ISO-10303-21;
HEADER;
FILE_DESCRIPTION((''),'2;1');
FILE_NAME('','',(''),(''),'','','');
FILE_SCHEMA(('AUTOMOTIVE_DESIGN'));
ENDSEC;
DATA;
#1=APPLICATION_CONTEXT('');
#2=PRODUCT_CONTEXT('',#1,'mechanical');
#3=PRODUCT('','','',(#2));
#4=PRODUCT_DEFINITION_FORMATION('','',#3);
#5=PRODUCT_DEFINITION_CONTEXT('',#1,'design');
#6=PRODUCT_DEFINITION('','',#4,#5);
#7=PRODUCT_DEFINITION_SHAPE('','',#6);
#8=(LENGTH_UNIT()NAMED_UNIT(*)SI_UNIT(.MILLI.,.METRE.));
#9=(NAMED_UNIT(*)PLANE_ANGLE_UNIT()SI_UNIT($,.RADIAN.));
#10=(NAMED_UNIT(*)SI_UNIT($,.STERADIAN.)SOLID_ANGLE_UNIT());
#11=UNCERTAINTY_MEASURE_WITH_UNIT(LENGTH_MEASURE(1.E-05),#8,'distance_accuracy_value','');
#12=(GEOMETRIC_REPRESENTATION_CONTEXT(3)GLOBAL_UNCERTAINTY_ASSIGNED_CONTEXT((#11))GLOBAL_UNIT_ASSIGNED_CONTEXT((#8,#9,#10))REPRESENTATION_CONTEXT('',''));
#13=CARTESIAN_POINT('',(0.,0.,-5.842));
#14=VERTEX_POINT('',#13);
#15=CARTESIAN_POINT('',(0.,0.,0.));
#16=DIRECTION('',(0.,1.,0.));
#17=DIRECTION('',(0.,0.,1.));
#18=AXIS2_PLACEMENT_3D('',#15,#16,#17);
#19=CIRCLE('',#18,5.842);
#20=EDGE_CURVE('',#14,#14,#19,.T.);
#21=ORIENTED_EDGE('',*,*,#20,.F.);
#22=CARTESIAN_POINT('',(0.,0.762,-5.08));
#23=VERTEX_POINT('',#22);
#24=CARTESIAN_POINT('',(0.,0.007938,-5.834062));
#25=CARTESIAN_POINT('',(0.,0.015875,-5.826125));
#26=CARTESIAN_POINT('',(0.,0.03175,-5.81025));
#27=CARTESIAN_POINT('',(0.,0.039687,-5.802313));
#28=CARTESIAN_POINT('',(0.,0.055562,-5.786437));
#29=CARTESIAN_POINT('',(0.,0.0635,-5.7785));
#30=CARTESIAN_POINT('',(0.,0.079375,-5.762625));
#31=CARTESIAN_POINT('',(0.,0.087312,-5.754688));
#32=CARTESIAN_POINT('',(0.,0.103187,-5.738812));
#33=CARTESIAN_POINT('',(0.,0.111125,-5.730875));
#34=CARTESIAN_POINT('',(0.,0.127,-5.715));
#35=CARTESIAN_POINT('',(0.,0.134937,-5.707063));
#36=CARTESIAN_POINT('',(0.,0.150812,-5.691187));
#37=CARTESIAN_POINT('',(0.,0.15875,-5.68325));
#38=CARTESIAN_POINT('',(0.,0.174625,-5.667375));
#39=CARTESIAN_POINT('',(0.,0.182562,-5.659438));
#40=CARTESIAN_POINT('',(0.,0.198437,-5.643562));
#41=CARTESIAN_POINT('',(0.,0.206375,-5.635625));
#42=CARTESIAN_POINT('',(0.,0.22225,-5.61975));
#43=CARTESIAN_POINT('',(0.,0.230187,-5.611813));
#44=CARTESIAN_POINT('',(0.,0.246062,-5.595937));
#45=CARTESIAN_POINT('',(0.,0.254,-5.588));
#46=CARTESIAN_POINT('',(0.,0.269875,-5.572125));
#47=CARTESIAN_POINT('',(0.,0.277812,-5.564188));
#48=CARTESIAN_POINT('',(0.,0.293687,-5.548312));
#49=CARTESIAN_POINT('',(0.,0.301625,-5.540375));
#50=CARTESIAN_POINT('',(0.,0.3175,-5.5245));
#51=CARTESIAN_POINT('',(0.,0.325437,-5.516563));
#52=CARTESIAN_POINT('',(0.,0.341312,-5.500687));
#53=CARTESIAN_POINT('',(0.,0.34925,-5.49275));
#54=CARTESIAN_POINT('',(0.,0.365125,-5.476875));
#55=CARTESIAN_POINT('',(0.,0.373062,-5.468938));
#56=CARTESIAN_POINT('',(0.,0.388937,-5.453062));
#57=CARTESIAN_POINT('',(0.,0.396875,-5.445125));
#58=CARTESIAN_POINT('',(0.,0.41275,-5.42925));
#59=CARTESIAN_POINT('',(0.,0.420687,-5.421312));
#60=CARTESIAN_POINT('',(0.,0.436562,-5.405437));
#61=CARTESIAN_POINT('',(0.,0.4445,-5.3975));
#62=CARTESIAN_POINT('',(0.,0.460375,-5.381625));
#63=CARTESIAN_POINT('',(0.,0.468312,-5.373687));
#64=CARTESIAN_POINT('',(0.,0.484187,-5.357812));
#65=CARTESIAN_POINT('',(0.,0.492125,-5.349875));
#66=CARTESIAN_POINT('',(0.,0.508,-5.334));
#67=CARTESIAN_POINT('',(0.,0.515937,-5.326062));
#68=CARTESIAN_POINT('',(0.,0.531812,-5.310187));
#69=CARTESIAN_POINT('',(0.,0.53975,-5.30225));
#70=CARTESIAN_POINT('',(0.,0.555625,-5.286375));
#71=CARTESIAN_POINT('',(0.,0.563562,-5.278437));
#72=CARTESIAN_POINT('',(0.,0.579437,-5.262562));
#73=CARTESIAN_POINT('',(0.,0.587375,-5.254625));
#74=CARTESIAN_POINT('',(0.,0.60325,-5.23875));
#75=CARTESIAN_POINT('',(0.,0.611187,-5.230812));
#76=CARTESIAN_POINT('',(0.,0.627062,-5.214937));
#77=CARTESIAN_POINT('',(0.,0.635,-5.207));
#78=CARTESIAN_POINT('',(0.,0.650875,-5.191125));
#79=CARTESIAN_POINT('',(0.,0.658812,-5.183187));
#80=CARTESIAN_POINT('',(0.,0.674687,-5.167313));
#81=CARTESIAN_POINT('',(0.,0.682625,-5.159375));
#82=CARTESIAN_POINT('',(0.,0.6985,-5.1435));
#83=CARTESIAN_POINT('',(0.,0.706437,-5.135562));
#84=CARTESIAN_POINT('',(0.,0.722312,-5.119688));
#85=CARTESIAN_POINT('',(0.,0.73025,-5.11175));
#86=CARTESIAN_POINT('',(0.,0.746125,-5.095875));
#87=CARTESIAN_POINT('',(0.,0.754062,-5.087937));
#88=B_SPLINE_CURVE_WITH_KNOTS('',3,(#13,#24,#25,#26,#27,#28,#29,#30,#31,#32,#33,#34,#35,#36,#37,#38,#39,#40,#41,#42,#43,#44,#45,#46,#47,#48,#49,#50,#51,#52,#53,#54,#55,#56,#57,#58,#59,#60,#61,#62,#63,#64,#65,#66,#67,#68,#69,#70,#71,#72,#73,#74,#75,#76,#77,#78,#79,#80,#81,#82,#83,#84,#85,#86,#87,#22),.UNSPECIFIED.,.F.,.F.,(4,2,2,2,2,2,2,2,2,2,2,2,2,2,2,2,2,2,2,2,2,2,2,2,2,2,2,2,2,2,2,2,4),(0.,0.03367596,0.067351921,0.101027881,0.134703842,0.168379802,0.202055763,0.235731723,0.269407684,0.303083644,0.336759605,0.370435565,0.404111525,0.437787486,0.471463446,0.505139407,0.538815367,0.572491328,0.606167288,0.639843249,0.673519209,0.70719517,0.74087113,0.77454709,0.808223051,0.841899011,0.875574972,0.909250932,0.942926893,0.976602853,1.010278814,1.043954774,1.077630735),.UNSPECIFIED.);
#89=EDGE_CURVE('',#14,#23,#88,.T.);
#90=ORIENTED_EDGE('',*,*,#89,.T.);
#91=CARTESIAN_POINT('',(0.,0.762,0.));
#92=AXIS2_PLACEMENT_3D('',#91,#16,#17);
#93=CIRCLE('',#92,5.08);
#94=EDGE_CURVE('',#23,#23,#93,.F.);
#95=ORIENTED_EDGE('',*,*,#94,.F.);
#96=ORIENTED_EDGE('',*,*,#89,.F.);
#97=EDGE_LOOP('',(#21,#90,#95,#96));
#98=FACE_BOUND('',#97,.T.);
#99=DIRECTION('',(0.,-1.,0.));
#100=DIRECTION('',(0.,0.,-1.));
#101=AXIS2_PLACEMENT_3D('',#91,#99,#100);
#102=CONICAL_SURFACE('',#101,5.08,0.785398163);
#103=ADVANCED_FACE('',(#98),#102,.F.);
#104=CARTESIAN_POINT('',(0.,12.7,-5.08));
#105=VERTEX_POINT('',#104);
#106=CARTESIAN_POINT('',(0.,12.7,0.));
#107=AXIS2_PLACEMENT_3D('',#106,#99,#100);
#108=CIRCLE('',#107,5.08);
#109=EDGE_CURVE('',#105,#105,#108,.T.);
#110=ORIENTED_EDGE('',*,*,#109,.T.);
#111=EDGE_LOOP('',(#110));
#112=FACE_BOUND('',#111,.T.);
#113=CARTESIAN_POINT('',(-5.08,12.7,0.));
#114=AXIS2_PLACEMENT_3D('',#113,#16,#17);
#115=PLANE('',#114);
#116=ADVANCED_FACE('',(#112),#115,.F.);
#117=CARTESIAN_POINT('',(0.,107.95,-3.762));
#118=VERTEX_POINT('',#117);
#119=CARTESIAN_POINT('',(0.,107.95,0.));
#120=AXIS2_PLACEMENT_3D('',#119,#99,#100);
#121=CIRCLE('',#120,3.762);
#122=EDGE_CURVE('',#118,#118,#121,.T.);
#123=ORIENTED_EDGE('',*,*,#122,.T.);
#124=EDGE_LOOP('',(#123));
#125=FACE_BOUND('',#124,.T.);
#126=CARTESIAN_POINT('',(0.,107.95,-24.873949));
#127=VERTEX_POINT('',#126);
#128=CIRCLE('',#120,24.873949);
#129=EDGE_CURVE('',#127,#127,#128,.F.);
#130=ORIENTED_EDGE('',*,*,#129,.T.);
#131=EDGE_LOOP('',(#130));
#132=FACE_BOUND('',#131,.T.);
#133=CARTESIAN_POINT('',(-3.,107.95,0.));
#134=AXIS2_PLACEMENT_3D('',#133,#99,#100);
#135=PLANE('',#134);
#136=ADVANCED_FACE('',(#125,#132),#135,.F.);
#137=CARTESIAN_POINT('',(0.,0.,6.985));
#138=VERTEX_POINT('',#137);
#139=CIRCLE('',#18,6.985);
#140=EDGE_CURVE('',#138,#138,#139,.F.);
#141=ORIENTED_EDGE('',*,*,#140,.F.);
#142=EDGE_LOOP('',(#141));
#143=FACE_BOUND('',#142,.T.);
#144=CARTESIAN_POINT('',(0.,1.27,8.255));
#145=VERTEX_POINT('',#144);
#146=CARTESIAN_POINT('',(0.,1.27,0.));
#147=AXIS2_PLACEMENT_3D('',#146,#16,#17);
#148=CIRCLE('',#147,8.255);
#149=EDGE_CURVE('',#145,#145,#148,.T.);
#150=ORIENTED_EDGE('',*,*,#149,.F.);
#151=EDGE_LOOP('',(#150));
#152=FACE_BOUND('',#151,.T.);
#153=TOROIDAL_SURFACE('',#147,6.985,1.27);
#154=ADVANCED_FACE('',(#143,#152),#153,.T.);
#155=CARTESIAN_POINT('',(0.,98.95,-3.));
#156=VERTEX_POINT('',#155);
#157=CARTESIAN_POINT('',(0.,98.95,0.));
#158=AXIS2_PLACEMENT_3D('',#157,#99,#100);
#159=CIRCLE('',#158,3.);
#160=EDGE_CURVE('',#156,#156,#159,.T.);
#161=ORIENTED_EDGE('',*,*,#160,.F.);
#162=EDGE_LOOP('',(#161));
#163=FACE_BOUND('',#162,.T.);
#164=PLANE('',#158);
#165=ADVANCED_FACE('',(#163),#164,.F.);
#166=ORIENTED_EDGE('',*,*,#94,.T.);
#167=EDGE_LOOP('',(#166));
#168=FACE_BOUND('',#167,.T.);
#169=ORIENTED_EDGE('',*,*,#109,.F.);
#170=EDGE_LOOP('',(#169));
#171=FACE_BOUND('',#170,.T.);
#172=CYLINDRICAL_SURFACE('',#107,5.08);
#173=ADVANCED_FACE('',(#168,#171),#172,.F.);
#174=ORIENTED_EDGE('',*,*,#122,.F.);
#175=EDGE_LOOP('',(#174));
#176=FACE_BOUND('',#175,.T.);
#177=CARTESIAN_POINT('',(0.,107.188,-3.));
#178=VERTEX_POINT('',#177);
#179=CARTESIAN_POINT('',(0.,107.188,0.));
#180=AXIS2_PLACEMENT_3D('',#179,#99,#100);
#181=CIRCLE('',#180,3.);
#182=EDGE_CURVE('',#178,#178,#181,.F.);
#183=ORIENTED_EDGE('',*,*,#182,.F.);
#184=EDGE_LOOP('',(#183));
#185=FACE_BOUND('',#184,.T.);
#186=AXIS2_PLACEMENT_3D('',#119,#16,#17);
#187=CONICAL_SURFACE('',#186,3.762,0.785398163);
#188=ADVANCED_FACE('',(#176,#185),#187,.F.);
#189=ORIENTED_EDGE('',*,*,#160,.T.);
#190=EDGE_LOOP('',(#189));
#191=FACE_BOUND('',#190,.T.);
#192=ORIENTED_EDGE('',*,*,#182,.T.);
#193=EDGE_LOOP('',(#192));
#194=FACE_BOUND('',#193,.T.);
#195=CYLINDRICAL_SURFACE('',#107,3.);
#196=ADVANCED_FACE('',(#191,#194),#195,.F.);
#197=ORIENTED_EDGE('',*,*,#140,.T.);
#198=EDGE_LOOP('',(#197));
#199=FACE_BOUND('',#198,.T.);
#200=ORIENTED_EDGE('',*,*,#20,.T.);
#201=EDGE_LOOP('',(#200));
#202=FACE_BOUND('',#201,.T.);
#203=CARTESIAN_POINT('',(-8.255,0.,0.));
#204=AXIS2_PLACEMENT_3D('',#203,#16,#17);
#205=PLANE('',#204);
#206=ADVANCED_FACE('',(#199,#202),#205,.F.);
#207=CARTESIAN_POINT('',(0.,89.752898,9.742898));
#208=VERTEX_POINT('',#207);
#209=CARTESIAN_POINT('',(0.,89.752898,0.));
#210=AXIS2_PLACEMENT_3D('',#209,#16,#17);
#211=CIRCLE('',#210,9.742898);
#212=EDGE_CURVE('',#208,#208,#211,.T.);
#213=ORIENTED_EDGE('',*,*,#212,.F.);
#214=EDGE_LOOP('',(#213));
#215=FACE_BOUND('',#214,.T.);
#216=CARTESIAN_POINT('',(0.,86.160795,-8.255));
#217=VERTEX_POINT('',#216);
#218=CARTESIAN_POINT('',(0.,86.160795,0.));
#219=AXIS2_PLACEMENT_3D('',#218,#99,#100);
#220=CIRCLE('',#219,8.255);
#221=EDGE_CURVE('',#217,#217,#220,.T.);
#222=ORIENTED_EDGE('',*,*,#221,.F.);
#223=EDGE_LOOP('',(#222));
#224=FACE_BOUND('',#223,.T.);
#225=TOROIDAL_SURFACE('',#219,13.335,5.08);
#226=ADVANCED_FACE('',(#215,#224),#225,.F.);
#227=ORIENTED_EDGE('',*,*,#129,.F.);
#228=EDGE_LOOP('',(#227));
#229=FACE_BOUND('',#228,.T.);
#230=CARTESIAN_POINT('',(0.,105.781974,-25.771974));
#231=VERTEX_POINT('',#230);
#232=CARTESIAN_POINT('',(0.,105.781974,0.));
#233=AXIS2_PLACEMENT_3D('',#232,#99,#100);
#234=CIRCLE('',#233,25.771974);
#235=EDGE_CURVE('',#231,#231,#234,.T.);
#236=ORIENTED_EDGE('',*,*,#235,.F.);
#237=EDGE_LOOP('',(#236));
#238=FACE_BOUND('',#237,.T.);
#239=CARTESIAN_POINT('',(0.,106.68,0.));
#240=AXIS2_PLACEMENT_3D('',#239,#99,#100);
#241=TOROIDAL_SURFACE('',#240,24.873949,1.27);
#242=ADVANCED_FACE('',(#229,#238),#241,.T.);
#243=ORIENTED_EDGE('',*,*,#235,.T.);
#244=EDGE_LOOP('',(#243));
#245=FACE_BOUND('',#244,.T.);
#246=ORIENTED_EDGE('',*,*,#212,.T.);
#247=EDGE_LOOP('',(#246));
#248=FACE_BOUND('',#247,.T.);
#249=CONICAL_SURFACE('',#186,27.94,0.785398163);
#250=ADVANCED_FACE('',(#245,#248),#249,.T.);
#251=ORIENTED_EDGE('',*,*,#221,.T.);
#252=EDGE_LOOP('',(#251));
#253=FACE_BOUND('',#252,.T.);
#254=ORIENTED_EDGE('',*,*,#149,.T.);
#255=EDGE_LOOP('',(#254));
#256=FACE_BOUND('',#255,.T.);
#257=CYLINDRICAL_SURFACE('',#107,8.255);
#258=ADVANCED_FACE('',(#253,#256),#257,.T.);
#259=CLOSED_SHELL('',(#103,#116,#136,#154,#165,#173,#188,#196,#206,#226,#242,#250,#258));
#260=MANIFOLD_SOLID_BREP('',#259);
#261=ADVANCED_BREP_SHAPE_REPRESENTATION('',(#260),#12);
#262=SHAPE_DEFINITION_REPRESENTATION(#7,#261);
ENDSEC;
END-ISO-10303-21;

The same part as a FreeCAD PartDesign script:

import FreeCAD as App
import Part
import Sketcher
from FreeCAD import Vector
Q = App.Units.Quantity


def edges_at(feature, points):
    """Names of the edges that pass closest to the given points."""
    edges = feature.Shape.Edges
    near = lambda p: min(range(len(edges)), key=lambda i: edges[i].distToShape(Part.Vertex(*p))[0])
    return sorted({f"Edge{near(p) + 1}" for p in points})

doc = App.newDocument("Part")
body = doc.addObject("PartDesign::Body", "Body")

# Sketch on XY plane
sketch1 = body.newObject("Sketcher::SketchObject", "Sketch")
sketch1.AttachmentSupport = (doc.getObject("XY_Plane"), [""])
sketch1.MapMode = "FlatFace"
sketch1.addGeometry(Part.LineSegment(Vector(-27.94, 107.95, 0), Vector(-8.255, 88.265, 0)), False)
sketch1.addGeometry(Part.LineSegment(Vector(-8.255, 88.265, 0), Vector(-8.255, 0, 0)), False)
sketch1.addGeometry(Part.LineSegment(Vector(-8.255, 0, 0), Vector(-5.08, 0, 0)), False)
sketch1.addGeometry(Part.LineSegment(Vector(-5.08, 0, 0), Vector(-5.08, 12.7, 0)), False)
sketch1.addGeometry(Part.LineSegment(Vector(-5.08, 12.7, 0), Vector(0, 12.7, 0)), False)
sketch1.addGeometry(Part.LineSegment(Vector(0, 12.7, 0), Vector(0, 98.95, 0)), False)
sketch1.addGeometry(Part.LineSegment(Vector(0, 98.95, 0), Vector(-3, 98.95, 0)), False)
sketch1.addGeometry(Part.LineSegment(Vector(-3, 98.95, 0), Vector(-3, 107.95, 0)), False)
sketch1.addGeometry(Part.LineSegment(Vector(-3, 107.95, 0), Vector(-27.94, 107.95, 0)), False)
sketch1.addConstraint(Sketcher.Constraint("Coincident", 0, 2, 1, 1))
sketch1.addConstraint(Sketcher.Constraint("Coincident", 1, 2, 2, 1))
sketch1.addConstraint(Sketcher.Constraint("Coincident", 2, 2, 3, 1))
sketch1.addConstraint(Sketcher.Constraint("Coincident", 3, 2, 4, 1))
sketch1.addConstraint(Sketcher.Constraint("Coincident", 4, 2, 5, 1))
sketch1.addConstraint(Sketcher.Constraint("Coincident", 5, 2, 6, 1))
sketch1.addConstraint(Sketcher.Constraint("Coincident", 6, 2, 7, 1))
sketch1.addConstraint(Sketcher.Constraint("Coincident", 7, 2, 8, 1))
sketch1.addConstraint(Sketcher.Constraint("Coincident", 8, 2, 0, 1))
sketch1.addConstraint(Sketcher.Constraint("Vertical", 1))
sketch1.addConstraint(Sketcher.Constraint("Horizontal", 2))
sketch1.addConstraint(Sketcher.Constraint("Vertical", 3))
sketch1.addConstraint(Sketcher.Constraint("Horizontal", 4))
sketch1.addConstraint(Sketcher.Constraint("Vertical", 5))
sketch1.addConstraint(Sketcher.Constraint("Horizontal", 6))
sketch1.addConstraint(Sketcher.Constraint("Vertical", 7))
sketch1.addConstraint(Sketcher.Constraint("Horizontal", 8))
sketch1.addConstraint(Sketcher.Constraint("PointOnObject", 1, 2, -1))
sketch1.addConstraint(Sketcher.Constraint("PointOnObject", 4, 2, -2))
sketch1.addConstraint(Sketcher.Constraint("DistanceX", 4, 1, 4, 2, Q("0.2 in")))
sketch1.addConstraint(Sketcher.Constraint("DistanceY", 3, 1, 3, 2, Q("0.5 in")))
sketch1.addConstraint(Sketcher.Constraint("Angle", 0, Q("-45 deg")))
sketch1.addConstraint(Sketcher.Constraint("DistanceX", 8, 2, -1, 1, Q("1.1 in")))
sketch1.addConstraint(Sketcher.Constraint("DistanceX", 2, 1, 2, 2, Q("0.125 in")))
sketch1.addConstraint(Sketcher.Constraint("DistanceY", 1, 2, 1, 1, Q("3.475 in")))
sketch1.addConstraint(Sketcher.Constraint("DistanceX", 6, 2, 6, 1, 3.0))
sketch1.addConstraint(Sketcher.Constraint("DistanceY", 5, 1, 5, 2, 86.25))
revolution = body.newObject("PartDesign::Revolution", "Revolution")
revolution.Profile = sketch1
revolution.ReferenceAxis = (sketch1, ["V_Axis"])
revolution.Angle = 360
doc.recompute()

chamfer = body.newObject("PartDesign::Chamfer", "Chamfer")
chamfer.Base = (revolution, edges_at(revolution, [(0, 0, 5.08), (0, 107.95, 3)]))
chamfer.Size = Q("0.03 in")
doc.recompute()

fillet = body.newObject("PartDesign::Fillet", "Fillet")
fillet.Base = (chamfer, edges_at(chamfer, [(0, 0, 8.255)]))
fillet.Radius = Q("0.05 in")
doc.recompute()

fillet2 = body.newObject("PartDesign::Fillet", "Fillet001")
fillet2.Base = (fillet, edges_at(fillet, [(0, 107.95, 27.94)]))
fillet2.Radius = Q("0.05 in")
doc.recompute()

fillet3 = body.newObject("PartDesign::Fillet", "Fillet002")
fillet3.Base = (fillet2, edges_at(fillet2, [(0, 88.265, 8.255)]))
fillet3.Radius = Q("0.2 in")

doc.recompute()
